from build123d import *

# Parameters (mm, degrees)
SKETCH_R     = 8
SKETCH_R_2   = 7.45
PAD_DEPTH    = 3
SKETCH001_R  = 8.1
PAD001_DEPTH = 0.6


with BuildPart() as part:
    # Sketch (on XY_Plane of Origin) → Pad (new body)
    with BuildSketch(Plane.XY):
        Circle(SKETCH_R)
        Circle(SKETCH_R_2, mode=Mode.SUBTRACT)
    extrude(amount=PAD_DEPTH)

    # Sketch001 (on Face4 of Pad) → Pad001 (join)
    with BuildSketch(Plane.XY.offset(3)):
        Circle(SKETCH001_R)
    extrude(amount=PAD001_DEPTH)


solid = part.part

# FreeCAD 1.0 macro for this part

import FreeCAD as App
import Part
import Sketcher
from FreeCAD import Vector

doc = App.newDocument("Part")
body = doc.addObject("PartDesign::Body", "Body")

# Sketch on XY plane
sketch1 = body.newObject("Sketcher::SketchObject", "Sketch")
sketch1.AttachmentSupport = (doc.getObject("XY_Plane"), [""])
sketch1.MapMode = "FlatFace"
sketch1.addGeometry(Part.Circle(Vector(0, 0, 0), Vector(0, 0, 1), 8), False)
sketch1.addGeometry(Part.Circle(Vector(0, 0, 0), Vector(0, 0, 1), 7), False)
sketch1.addConstraint(Sketcher.Constraint("Coincident", 0, 3, -1, 1))
sketch1.addConstraint(Sketcher.Constraint("Coincident", 1, 3, -1, 1))
sketch1.addConstraint(Sketcher.Constraint("Diameter", 0, 16.0))
sketch1.addConstraint(Sketcher.Constraint("Diameter", 1, 14.9))
pad1 = body.newObject("PartDesign::Pad", "Pad")
pad1.Profile = sketch1
pad1.Length = 3

# Sketch on XY plane
sketch2 = body.newObject("Sketcher::SketchObject", "Sketch001")
sketch2.AttachmentSupport = (doc.getObject("XY_Plane"), [""])
sketch2.MapMode = "FlatFace"
sketch2.AttachmentOffset = App.Placement(Vector(0, 0, 3), App.Rotation())
sketch2.addGeometry(Part.Circle(Vector(0, 0, 0), Vector(0, 0, 1), 8), False)
sketch2.addConstraint(Sketcher.Constraint("Coincident", 0, 3, -1, 1))
sketch2.addConstraint(Sketcher.Constraint("Diameter", 0, 16.2))
pad2 = body.newObject("PartDesign::Pad", "Pad001")
pad2.Profile = sketch2
pad2.Length = 0.6

doc.recompute()
